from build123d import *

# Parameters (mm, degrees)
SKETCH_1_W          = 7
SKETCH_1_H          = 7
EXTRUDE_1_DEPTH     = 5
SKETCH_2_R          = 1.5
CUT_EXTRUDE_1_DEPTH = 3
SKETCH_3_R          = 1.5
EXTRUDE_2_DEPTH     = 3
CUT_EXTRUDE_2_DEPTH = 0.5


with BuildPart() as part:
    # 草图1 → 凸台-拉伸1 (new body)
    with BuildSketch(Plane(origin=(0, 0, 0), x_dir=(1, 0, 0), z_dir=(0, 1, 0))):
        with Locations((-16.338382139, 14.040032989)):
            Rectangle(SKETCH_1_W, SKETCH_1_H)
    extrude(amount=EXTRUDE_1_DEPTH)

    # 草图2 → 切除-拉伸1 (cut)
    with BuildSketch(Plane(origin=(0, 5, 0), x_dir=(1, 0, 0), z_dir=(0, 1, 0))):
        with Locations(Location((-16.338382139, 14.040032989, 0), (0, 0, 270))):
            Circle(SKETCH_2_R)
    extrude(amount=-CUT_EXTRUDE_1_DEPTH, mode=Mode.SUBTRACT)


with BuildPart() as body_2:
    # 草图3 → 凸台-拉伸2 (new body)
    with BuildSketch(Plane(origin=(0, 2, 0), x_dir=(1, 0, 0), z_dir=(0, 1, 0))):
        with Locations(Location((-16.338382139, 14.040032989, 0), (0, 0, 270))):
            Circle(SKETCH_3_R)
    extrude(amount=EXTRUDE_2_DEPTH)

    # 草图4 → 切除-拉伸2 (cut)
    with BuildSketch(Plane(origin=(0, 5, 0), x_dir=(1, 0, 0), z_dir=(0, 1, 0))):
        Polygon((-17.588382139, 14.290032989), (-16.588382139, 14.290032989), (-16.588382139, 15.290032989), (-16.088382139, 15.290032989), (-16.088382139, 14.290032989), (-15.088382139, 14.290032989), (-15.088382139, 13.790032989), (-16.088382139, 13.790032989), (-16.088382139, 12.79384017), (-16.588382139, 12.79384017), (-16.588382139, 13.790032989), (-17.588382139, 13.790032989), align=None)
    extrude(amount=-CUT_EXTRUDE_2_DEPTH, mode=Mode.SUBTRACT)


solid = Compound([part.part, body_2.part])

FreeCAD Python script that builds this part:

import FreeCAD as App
import Part
import Sketcher
Q = App.Units.Quantity


def add_polygon(sketch, points):
    """Adds a closed chain of lines whose ends are joined by coincident constraints."""
    first, n = sketch.GeometryCount, len(points)
    for a, b in zip(points, points[1:] + points[:1]):
        sketch.addGeometry(Part.LineSegment(App.Vector(*a, 0), App.Vector(*b, 0)), False)
    for i in range(n):
        sketch.addConstraint(Sketcher.Constraint("Coincident", first + i, 2, first + (i + 1) % n, 1))

doc = App.newDocument("Part")
body = doc.addObject("PartDesign::Body", "Body")

# Sketch on XZ plane
sketch1 = doc.addObject("Sketcher::SketchObject", "Sketch")
body.addObject(sketch1)
sketch1.AttachmentSupport = (doc.XZ_Plane, [""])
sketch1.MapMode = "FlatFace"
add_polygon(sketch1, [(-20, -18), (-20, -11), (-13, -11), (-13, -18)])  # lines 0-3
sketch1.addConstraint([
    Sketcher.Constraint("Vertical", 0),
    Sketcher.Constraint("Horizontal", 1),
    Sketcher.Constraint("Vertical", 2),
    Sketcher.Constraint("Horizontal", 3),
    Sketcher.Constraint("Equal", 3, 0),
    Sketcher.Constraint("DistanceX", 1, 1, 1, 2, Q("7 mm")),
    Sketcher.Constraint("DistanceX", 0, 2, -1, 1, Q("19.838382 mm")),
    Sketcher.Constraint("DistanceY", 0, 2, -1, 1, Q("10.540033 mm")),
])
pad1 = doc.addObject("PartDesign::Pad", "Pad")
body.addObject(pad1)
pad1.Profile = sketch1
pad1.Length = 5
pad1.Reversed = True

# Sketch on XZ plane
sketch2 = doc.addObject("Sketcher::SketchObject", "Sketch001")
body.addObject(sketch2)
sketch2.AttachmentSupport = (doc.XZ_Plane, [""])
sketch2.MapMode = "FlatFace"
sketch2.AttachmentOffset = App.Placement(App.Vector(0, 0, -5), App.Rotation())
sketch2.addGeometry(Part.Circle(App.Vector(-16.3, -14, 0), App.Vector(0, 0, 1), 1.5), False)
sketch2.addConstraint([
    Sketcher.Constraint("Diameter", 0, Q("3 mm")),
    Sketcher.Constraint("DistanceX", 0, 3, -1, 1, Q("16.338382 mm")),
    Sketcher.Constraint("DistanceY", 0, 3, -1, 1, Q("14.040033 mm")),
])
pocket1 = doc.addObject("PartDesign::Pocket", "Pocket")
body.addObject(pocket1)
pocket1.Profile = sketch2
pocket1.Length = 3
pocket1.Reversed = True
body2 = doc.addObject("PartDesign::Body", "Body001")

# Sketch on XZ plane
sketch3 = doc.addObject("Sketcher::SketchObject", "Sketch002")
body2.addObject(sketch3)
sketch3.AttachmentSupport = (doc.getObject("XZ_Plane001"), [""])
sketch3.MapMode = "FlatFace"
sketch3.AttachmentOffset = App.Placement(App.Vector(0, 0, -2), App.Rotation())
sketch3.addGeometry(Part.Circle(App.Vector(-16.3, -14, 0), App.Vector(0, 0, 1), 1.5), False)
sketch3.addConstraint([
    Sketcher.Constraint("Diameter", 0, Q("3 mm")),
    Sketcher.Constraint("DistanceX", 0, 3, -1, 1, Q("16.338382 mm")),
    Sketcher.Constraint("DistanceY", 0, 3, -1, 1, Q("14.040033 mm")),
])
pad2 = doc.addObject("PartDesign::Pad", "Pad001")
body2.addObject(pad2)
pad2.Profile = sketch3
pad2.Length = 3
pad2.Reversed = True

# Sketch on XZ plane
sketch4 = doc.addObject("Sketcher::SketchObject", "Sketch003")
body2.addObject(sketch4)
sketch4.AttachmentSupport = (doc.getObject("XZ_Plane001"), [""])
sketch4.MapMode = "FlatFace"
sketch4.AttachmentOffset = App.Placement(App.Vector(0, 0, -5), App.Rotation())
add_polygon(sketch4, [(-16.6, -14.3), (-17.6, -14.3), (-17.6, -13.8), (-16.6, -13.8), (-16.6, -12.8), (-16.1, -12.8), (-16.1, -13.8), (-15.1, -13.8), (-15.1, -14.3), (-16.1, -14.3), (-16.1, -15.3), (-16.6, -15.3)])  # lines 0-11
sketch4.addConstraint([
    Sketcher.Constraint("Horizontal", 0),
    Sketcher.Constraint("Vertical", 1),
    Sketcher.Constraint("Horizontal", 2),
    Sketcher.Constraint("Vertical", 3),
    Sketcher.Constraint("Horizontal", 4),
    Sketcher.Constraint("Vertical", 5),
    Sketcher.Constraint("Horizontal", 6),
    Sketcher.Constraint("Vertical", 7),
    Sketcher.Constraint("Horizontal", 8),
    Sketcher.Constraint("Vertical", 9),
    Sketcher.Constraint("Horizontal", 10),
    Sketcher.Constraint("Vertical", 11),
    Sketcher.Constraint("Horizontal", 2, 2, 5, 2),
    Sketcher.Constraint("Horizontal", 0, 2, 7, 2),
    Sketcher.Constraint("Vertical", 5, 2, 8, 2),
    Sketcher.Constraint("Vertical", 3, 2, 10, 2),
    Sketcher.Constraint("Equal", 2, 6),
    Sketcher.Constraint("Equal", 10, 1),
    Sketcher.Constraint("Equal", 8, 9),
    Sketcher.Constraint("DistanceX", 0, 2, 0, 1, Q("1 mm")),
    Sketcher.Constraint("DistanceX", 4, 1, 4, 2, Q("0.5 mm")),
    Sketcher.Constraint("DistanceY", 3, 1, 3, 2, Q("0.996193 mm")),
    Sketcher.Constraint("DistanceY", 3, 2, -1, 1, Q("12.79384 mm")),
    Sketcher.Constraint("DistanceX", 0, 2, -1, 1, Q("17.588382 mm")),
])
pocket2 = doc.addObject("PartDesign::Pocket", "Pocket001")
body2.addObject(pocket2)
pocket2.Profile = sketch4
pocket2.Length = 0.5
pocket2.Reversed = True

doc.recompute()
